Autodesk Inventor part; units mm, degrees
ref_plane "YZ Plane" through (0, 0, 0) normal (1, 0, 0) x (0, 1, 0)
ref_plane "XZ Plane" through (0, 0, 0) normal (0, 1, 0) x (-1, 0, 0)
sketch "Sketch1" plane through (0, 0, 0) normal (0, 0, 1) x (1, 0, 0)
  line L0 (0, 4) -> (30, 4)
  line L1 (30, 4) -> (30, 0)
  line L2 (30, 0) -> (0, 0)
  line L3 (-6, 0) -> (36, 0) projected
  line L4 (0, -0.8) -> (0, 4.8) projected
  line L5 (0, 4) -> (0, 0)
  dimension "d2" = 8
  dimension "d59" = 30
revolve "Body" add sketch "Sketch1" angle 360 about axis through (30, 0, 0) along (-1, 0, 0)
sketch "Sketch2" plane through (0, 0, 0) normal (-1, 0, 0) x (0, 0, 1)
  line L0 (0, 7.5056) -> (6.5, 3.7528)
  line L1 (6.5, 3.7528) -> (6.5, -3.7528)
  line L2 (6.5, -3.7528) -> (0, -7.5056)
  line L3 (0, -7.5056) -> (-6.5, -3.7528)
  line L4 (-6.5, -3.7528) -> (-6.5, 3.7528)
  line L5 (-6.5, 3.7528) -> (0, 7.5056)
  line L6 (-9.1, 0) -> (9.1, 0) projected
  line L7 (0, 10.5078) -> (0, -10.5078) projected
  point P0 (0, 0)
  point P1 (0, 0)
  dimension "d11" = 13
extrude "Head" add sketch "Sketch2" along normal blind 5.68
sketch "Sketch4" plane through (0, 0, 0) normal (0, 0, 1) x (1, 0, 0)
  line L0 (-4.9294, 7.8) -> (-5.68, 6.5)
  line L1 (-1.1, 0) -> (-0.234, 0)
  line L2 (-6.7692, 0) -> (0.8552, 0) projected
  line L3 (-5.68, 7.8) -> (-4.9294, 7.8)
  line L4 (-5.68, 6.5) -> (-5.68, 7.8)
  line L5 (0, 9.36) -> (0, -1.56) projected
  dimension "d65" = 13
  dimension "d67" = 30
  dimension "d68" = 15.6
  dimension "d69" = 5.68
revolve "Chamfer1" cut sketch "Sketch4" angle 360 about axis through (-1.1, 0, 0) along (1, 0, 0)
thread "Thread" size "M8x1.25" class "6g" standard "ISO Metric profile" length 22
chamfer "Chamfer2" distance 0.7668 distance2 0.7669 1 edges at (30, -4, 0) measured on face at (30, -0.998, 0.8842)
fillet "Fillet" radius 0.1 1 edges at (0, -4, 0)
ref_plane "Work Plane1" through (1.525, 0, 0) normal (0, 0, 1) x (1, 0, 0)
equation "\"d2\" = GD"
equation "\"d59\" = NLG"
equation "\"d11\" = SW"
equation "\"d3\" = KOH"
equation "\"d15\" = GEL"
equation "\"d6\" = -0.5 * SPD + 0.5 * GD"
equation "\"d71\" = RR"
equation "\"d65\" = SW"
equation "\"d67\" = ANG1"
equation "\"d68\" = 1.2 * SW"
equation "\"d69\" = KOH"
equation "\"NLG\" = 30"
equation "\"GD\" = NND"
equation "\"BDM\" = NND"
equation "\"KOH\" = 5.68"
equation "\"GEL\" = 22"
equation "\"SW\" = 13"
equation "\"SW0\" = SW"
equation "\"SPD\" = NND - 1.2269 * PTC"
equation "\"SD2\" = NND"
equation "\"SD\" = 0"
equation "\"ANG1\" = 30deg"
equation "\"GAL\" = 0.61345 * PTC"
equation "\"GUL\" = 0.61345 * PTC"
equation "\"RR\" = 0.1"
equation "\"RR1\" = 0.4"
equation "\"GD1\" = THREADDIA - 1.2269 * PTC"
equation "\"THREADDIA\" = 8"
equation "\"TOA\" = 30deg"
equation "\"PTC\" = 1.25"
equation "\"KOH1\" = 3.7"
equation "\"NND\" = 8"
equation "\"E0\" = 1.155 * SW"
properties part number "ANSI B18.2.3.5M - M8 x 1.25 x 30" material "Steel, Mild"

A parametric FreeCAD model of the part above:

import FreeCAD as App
import Part
import Sketcher
Q = App.Units.Quantity


def edges_at(feature, points):
    """Names of the edges that pass closest to the given points."""
    edges = feature.Shape.Edges
    near = lambda p: min(range(len(edges)), key=lambda i: edges[i].distToShape(Part.Vertex(*p))[0])
    return sorted({f"Edge{near(p) + 1}" for p in points})

doc = App.newDocument("Part")
body = doc.addObject("PartDesign::Body", "Body")

sketch1 = doc.addObject("Sketcher::SketchObject", "Sketch")
body.addObject(sketch1)
sketch1.AttachmentSupport = (doc.XY_Plane, [""])
sketch1.MapMode = "FlatFace"
sketch1.addGeometry([
    Part.LineSegment(App.Vector(30, 4, 0), App.Vector(0, 4, 0)),
    Part.LineSegment(App.Vector(0, 4, 0), App.Vector(0, 0, 0)),
    Part.LineSegment(App.Vector(0, 0, 0), App.Vector(30, 0, 0)),
    Part.LineSegment(App.Vector(30, 0, 0), App.Vector(30, 4, 0)),
], False)
sketch1.addConstraint([
    Sketcher.Constraint("Coincident", 0, 2, 1, 1),
    Sketcher.Constraint("Coincident", 1, 2, 2, 1),
    Sketcher.Constraint("Coincident", 2, 2, 3, 1),
    Sketcher.Constraint("Coincident", 3, 2, 0, 1),
    Sketcher.Constraint("Horizontal", 0),
    Sketcher.Constraint("Vertical", 1),
    Sketcher.Constraint("Horizontal", 2),
    Sketcher.Constraint("Vertical", 3),
    Sketcher.Constraint("Coincident", 1, 2, -1, 1),
    Sketcher.Constraint("DistanceX", 0, 2, 0, 1, Q("30 mm")),
    Sketcher.Constraint("DistanceY", 1, 2, 1, 1, Q("4 mm")),
])
revolution = doc.addObject("PartDesign::Revolution", "Revolution")
body.addObject(revolution)
revolution.Profile = sketch1
revolution.ReferenceAxis = (sketch1, ["H_Axis"])
revolution.Angle = 360

sketch2 = doc.addObject("Sketcher::SketchObject", "Sketch001")
body.addObject(sketch2)
sketch2.AttachmentSupport = (doc.YZ_Plane, [""])
sketch2.MapMode = "FlatFace"
sketch2.addGeometry([
    Part.LineSegment(App.Vector(4, -6, 0), App.Vector(-4, -6, 0)),
    Part.LineSegment(App.Vector(-4, -6, 0), App.Vector(-8, 0, 0)),
    Part.LineSegment(App.Vector(-8, 0, 0), App.Vector(-4, 6, 0)),
    Part.LineSegment(App.Vector(-4, 6, 0), App.Vector(4, 6, 0)),
    Part.LineSegment(App.Vector(4, 6, 0), App.Vector(8, 0, 0)),
    Part.LineSegment(App.Vector(8, 0, 0), App.Vector(4, -6, 0)),
], False)
sketch2.addConstraint([
    Sketcher.Constraint("Coincident", 0, 2, 1, 1),
    Sketcher.Constraint("Coincident", 1, 2, 2, 1),
    Sketcher.Constraint("Coincident", 2, 2, 3, 1),
    Sketcher.Constraint("Coincident", 3, 2, 4, 1),
    Sketcher.Constraint("Coincident", 4, 2, 5, 1),
    Sketcher.Constraint("Coincident", 5, 2, 0, 1),
    Sketcher.Constraint("Horizontal", 0),
    Sketcher.Constraint("Horizontal", 3),
    Sketcher.Constraint("Symmetric", 0, 2, 3, 2, -1, 1),
    Sketcher.Constraint("Symmetric", 1, 2, 4, 2, -1, 1),
    Sketcher.Constraint("PointOnObject", 1, 2, -1),
    Sketcher.Constraint("Parallel", 2, 5),
    Sketcher.Constraint("Vertical", 0, 2, 2, 2),
    Sketcher.Constraint("DistanceY", 0, 2, 2, 2, Q("13 mm")),
    Sketcher.Constraint("Angle", 1, Q("120.0002 deg")),
    Sketcher.Constraint("DistanceX", 0, 2, 0, 1, Q("7.5056 mm")),
])
pad1 = doc.addObject("PartDesign::Pad", "Pad")
body.addObject(pad1)
pad1.Profile = sketch2
pad1.Length = 5.68
pad1.Reversed = True

sketch3 = doc.addObject("Sketcher::SketchObject", "Sketch002")
body.addObject(sketch3)
sketch3.AttachmentSupport = (doc.XY_Plane, [""])
sketch3.MapMode = "FlatFace"
sketch3.addGeometry([
    Part.LineSegment(App.Vector(-5.7, 6.5, 0), App.Vector(-4.9, 7.8, 0)),
    Part.LineSegment(App.Vector(-4.9, 7.8, 0), App.Vector(-5.7, 7.8, 0)),
    Part.LineSegment(App.Vector(-5.7, 7.8, 0), App.Vector(-5.7, 6.5, 0)),
], False)
sketch3.addConstraint([
    Sketcher.Constraint("Coincident", 0, 2, 1, 1),
    Sketcher.Constraint("Coincident", 1, 2, 2, 1),
    Sketcher.Constraint("Coincident", 2, 2, 0, 1),
    Sketcher.Constraint("Horizontal", 1),
    Sketcher.Constraint("Vertical", 2),
    Sketcher.Constraint("DistanceX", 1, 2, -1, 1, Q("5.68 mm")),
    Sketcher.Constraint("DistanceY", 2, 2, 2, 1, Q("1.3 mm")),
    Sketcher.Constraint("DistanceY", -1, 1, 0, 2, Q("7.8 mm")),
    Sketcher.Constraint("DistanceX", 1, 2, 1, 1, Q("0.7506 mm")),
])
groove = doc.addObject("PartDesign::Groove", "Groove")
body.addObject(groove)
groove.Profile = sketch3
groove.ReferenceAxis = (sketch3, ["H_Axis"])
groove.Angle = 360
doc.recompute()

chamfer = doc.addObject("PartDesign::Chamfer", "Chamfer")
body.addObject(chamfer)
chamfer.Base = (groove, edges_at(groove, [(30, -4, 0)]))
chamfer.ChamferType = "Two distances"
chamfer.Size = 0.7668
chamfer.Size2 = 0.7669
doc.recompute()

fillet = doc.addObject("PartDesign::Fillet", "Fillet")
body.addObject(fillet)
fillet.Base = (chamfer, edges_at(chamfer, [(0, -4, 0)]))
fillet.Radius = 0.1

doc.recompute()
